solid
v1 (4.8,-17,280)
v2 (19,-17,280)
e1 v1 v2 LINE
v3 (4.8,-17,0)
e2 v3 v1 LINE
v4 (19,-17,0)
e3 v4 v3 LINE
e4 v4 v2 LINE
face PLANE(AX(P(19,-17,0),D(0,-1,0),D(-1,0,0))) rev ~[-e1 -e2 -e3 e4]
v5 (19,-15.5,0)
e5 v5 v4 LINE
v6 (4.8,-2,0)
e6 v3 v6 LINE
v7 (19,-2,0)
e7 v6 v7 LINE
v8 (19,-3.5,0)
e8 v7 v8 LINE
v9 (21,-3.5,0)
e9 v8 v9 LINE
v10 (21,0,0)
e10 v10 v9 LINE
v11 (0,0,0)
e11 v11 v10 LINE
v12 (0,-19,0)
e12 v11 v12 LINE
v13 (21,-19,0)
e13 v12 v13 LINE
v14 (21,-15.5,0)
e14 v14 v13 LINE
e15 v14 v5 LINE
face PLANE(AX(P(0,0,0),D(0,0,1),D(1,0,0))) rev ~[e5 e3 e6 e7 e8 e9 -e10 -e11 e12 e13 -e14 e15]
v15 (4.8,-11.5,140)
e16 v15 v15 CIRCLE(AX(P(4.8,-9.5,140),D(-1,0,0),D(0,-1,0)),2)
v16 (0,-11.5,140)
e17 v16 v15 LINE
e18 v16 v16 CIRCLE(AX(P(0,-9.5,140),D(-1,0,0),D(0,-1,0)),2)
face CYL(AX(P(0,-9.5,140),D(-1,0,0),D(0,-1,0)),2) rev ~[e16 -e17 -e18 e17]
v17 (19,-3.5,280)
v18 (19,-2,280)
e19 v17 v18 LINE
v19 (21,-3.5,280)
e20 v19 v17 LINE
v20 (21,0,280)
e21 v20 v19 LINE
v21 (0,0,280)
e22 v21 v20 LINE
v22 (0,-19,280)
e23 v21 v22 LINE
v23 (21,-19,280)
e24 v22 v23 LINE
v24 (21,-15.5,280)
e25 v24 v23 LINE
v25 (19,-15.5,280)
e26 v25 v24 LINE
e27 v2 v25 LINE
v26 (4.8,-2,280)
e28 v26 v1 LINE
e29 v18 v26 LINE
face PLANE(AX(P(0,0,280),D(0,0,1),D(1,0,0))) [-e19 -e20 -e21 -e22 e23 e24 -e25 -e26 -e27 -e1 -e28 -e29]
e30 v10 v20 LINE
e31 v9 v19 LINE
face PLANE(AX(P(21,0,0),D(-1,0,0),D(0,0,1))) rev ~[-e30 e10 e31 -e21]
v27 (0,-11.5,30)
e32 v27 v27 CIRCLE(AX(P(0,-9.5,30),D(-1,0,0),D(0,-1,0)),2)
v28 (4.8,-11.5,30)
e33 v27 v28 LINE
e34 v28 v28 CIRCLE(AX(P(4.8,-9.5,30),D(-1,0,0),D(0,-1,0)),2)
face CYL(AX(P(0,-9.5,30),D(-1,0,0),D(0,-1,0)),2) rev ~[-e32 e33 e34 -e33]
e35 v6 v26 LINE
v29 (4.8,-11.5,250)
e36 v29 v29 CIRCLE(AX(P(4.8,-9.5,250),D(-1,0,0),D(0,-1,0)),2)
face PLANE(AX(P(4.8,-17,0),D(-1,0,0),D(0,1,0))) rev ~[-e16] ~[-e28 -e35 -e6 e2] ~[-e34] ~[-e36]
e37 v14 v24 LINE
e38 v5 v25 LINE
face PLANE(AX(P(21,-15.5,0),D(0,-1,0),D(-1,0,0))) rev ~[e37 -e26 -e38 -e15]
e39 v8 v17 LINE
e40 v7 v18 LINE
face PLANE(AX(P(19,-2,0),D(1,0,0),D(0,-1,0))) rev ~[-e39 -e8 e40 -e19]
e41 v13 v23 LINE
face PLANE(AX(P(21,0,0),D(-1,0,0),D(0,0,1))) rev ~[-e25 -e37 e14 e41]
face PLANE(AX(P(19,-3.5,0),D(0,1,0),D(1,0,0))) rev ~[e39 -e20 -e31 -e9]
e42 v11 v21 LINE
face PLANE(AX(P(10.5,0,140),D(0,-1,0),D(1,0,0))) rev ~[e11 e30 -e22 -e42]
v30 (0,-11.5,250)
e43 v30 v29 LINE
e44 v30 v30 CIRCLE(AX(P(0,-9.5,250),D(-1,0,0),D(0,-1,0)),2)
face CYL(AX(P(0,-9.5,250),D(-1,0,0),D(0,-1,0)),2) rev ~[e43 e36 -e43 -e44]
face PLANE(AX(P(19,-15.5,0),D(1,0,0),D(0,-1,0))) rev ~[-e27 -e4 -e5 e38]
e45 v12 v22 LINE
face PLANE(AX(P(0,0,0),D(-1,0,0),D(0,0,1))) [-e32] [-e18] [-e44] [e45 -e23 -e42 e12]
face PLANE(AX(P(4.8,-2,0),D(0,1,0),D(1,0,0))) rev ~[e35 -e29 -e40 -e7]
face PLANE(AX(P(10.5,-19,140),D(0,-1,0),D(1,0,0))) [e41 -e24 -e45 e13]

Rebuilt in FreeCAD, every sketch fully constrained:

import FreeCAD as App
import Part
import Sketcher

V = App.Vector
Q = App.Units.Quantity


def add_polygon(sketch, points):
    """Adds a closed chain of lines whose ends are joined by coincident constraints."""
    first, n = sketch.GeometryCount, len(points)
    for a, b in zip(points, points[1:] + points[:1]):
        sketch.addGeometry(Part.LineSegment(App.Vector(*a, 0), App.Vector(*b, 0)), False)
    for i in range(n):
        sketch.addConstraint(Sketcher.Constraint("Coincident", first + i, 2, first + (i + 1) % n, 1))

doc = App.newDocument("Part")
body = doc.addObject("PartDesign::Body", "Body")

sketch1 = body.newObject("Sketcher::SketchObject", "Sketch")
sketch1.AttachmentSupport = (doc.getObject("XZ_Plane"), [""])
sketch1.MapMode = "FlatFace"
add_polygon(sketch1, [(0, 280), (0, 0), (21, 0), (21, 280)])
sketch1.addConstraint(Sketcher.Constraint("Vertical", 0))
sketch1.addConstraint(Sketcher.Constraint("Horizontal", 1))
sketch1.addConstraint(Sketcher.Constraint("Vertical", 2))
sketch1.addConstraint(Sketcher.Constraint("Horizontal", 3))
sketch1.addConstraint(Sketcher.Constraint("Coincident", 0, 2, -1, 1))
sketch1.addConstraint(Sketcher.Constraint("DistanceX", 1, 1, 1, 2, Q("21 mm")))
sketch1.addConstraint(Sketcher.Constraint("DistanceY", 0, 2, 0, 1, Q("280 mm")))
pad1 = body.newObject("PartDesign::Pad", "Pad")
pad1.Profile = sketch1
pad1.Length = 19

sketch2 = body.newObject("Sketcher::SketchObject", "Sketch001")
sketch2.AttachmentSupport = (doc.getObject("XY_Plane"), [""])
sketch2.MapMode = "FlatFace"
add_polygon(sketch2, [(19, -17), (4.8, -17), (4.8, -2), (19, -2), (19, -3.5), (21, -3.5), (21, -15.5), (19, -15.5)])
sketch2.addConstraint(Sketcher.Constraint("Horizontal", 0))
sketch2.addConstraint(Sketcher.Constraint("Vertical", 1))
sketch2.addConstraint(Sketcher.Constraint("Horizontal", 2))
sketch2.addConstraint(Sketcher.Constraint("Vertical", 3))
sketch2.addConstraint(Sketcher.Constraint("Horizontal", 4))
sketch2.addConstraint(Sketcher.Constraint("Vertical", 5))
sketch2.addConstraint(Sketcher.Constraint("Horizontal", 6))
sketch2.addConstraint(Sketcher.Constraint("Vertical", 7))
sketch2.addConstraint(Sketcher.Constraint("Vertical", 3, 2, 6, 2))
sketch2.addConstraint(Sketcher.Constraint("Equal", 3, 7))
sketch2.addConstraint(Sketcher.Constraint("DistanceX", 4, 1, 4, 2, Q("2 mm")))
sketch2.addConstraint(Sketcher.Constraint("DistanceY", 1, 1, 1, 2, Q("15 mm")))
sketch2.addConstraint(Sketcher.Constraint("DistanceY", 5, 2, 5, 1, Q("12 mm")))
sketch2.addConstraint(Sketcher.Constraint("DistanceX", 0, 2, 0, 1, Q("14.2 mm")))
sketch2.addConstraint(Sketcher.Constraint("DistanceY", 0, 2, -1, 1, Q("17 mm")))
sketch2.addConstraint(Sketcher.Constraint("DistanceX", -1, 1, 2, 2, Q("19 mm")))
pocket1 = body.newObject("PartDesign::Pocket", "Pocket")
pocket1.Profile = sketch2
pocket1.Type = "ThroughAll"
pocket1.Reversed = True

sketch3 = body.newObject("Sketcher::SketchObject", "Sketch002")
sketch3.AttachmentSupport = (doc.getObject("YZ_Plane"), [""])
sketch3.MapMode = "FlatFace"
sketch3.addGeometry(Part.Circle(V(-9.5, 30, 0), V(0, 0, 1), 2), False)
sketch3.addGeometry(Part.Circle(V(-9.5, 140, 0), V(0, 0, 1), 2), False)
sketch3.addGeometry(Part.Circle(V(-9.5, 250, 0), V(0, 0, 1), 2), False)
sketch3.addConstraint(Sketcher.Constraint("Equal", 0, 1))
sketch3.addConstraint(Sketcher.Constraint("Equal", 1, 2))
sketch3.addConstraint(Sketcher.Constraint("Vertical", 0, 3, 1, 3))
sketch3.addConstraint(Sketcher.Constraint("Vertical", 1, 3, 2, 3))
sketch3.addConstraint(Sketcher.Constraint("Diameter", 0, Q("4 mm")))
sketch3.addConstraint(Sketcher.Constraint("DistanceY", -1, 1, 0, 3, Q("30 mm")))
sketch3.addConstraint(Sketcher.Constraint("DistanceY", -1, 1, 1, 3, Q("140 mm")))
sketch3.addConstraint(Sketcher.Constraint("DistanceY", -1, 1, 2, 3, Q("250 mm")))
sketch3.addConstraint(Sketcher.Constraint("DistanceX", 0, 3, -1, 1, Q("9.5 mm")))
pocket2 = body.newObject("PartDesign::Pocket", "Pocket001")
pocket2.Profile = sketch3
pocket2.Type = "ThroughAll"
pocket2.Reversed = True

doc.recompute()
